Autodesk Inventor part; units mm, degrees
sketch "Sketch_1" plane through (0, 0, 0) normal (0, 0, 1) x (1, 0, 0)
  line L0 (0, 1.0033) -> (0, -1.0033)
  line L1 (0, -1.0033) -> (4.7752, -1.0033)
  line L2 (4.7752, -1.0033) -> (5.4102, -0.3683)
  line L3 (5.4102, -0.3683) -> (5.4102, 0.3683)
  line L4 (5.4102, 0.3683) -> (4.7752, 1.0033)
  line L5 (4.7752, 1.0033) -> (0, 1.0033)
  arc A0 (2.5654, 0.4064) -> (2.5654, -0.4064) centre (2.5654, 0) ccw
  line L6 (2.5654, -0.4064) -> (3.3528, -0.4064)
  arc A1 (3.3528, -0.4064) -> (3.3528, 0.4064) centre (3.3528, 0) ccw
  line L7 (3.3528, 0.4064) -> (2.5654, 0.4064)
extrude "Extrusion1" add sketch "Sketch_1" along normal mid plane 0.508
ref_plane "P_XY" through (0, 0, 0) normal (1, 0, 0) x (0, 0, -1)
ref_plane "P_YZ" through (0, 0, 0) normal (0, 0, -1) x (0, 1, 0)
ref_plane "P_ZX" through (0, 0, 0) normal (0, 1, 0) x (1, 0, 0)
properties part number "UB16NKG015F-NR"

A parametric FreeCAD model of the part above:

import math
import FreeCAD as App
import Part
import Sketcher

V = App.Vector
Q = App.Units.Quantity


def add_polygon(sketch, points):
    """Adds a closed chain of lines whose ends are joined by coincident constraints."""
    first, n = sketch.GeometryCount, len(points)
    for a, b in zip(points, points[1:] + points[:1]):
        sketch.addGeometry(Part.LineSegment(App.Vector(*a, 0), App.Vector(*b, 0)), False)
    for i in range(n):
        sketch.addConstraint(Sketcher.Constraint("Coincident", first + i, 2, first + (i + 1) % n, 1))

doc = App.newDocument("Part")
body = doc.addObject("PartDesign::Body", "Body")

# Sketch on XY plane
sketch1 = body.newObject("Sketcher::SketchObject", "Sketch")
sketch1.AttachmentSupport = (doc.getObject("XY_Plane"), [""])
sketch1.MapMode = "FlatFace"
add_polygon(sketch1, [(4.7752, 1.0033), (0, 1.0033), (0, -1.0033), (4.7752, -1.0033), (5.4102, -0.3683), (5.4102, 0.3683)])  # lines 0-5
sketch1.addGeometry(Part.ArcOfCircle(Part.Circle(V(2.5654, 0, 0), V(0, 0, 1), 0.4064), math.radians(90), math.radians(270)), False)  # 6
sketch1.addGeometry(Part.LineSegment(V(2.5654, 0.4064, 0), V(3.3528, 0.4064, 0)), False)  # 7
sketch1.addGeometry(Part.ArcOfCircle(Part.Circle(V(3.3528, 0, 0), V(0, 0, 1), 0.4064), math.radians(-90), math.radians(90)), False)  # 8
sketch1.addGeometry(Part.LineSegment(V(3.3528, -0.4064, 0), V(2.5654, -0.4064, 0)), False)  # 9
sketch1.addConstraint([
    Sketcher.Constraint("Tangent", 6, 1, 7, 1),
    Sketcher.Constraint("Tangent", 7, 2, 8, 2),
    Sketcher.Constraint("Tangent", 8, 1, 9, 1),
    Sketcher.Constraint("Tangent", 9, 2, 6, 2),
    Sketcher.Constraint("Horizontal", 0),
    Sketcher.Constraint("Vertical", 1),
    Sketcher.Constraint("Horizontal", 2),
    Sketcher.Constraint("Vertical", 4),
    Sketcher.Constraint("Horizontal", 7),
    Sketcher.Constraint("Horizontal", 9),
    Sketcher.Constraint("Symmetric", 0, 2, 1, 2, -1, 1),
    Sketcher.Constraint("PointOnObject", 6, 3, -1),
    Sketcher.Constraint("Perpendicular", 3, 5),
    Sketcher.Constraint("Vertical", 2, 2, 5, 2),
    Sketcher.Constraint("Equal", 3, 5),
    Sketcher.Constraint("Radius", 6, Q("0.016 in")),
    Sketcher.Constraint("DistanceX", 0, 2, 0, 1, Q("0.188 in")),
    Sketcher.Constraint("DistanceX", 7, 1, 7, 2, Q("0.031 in")),
    Sketcher.Constraint("DistanceY", 1, 2, 1, 1, Q("0.079 in")),
    Sketcher.Constraint("DistanceY", 4, 1, 4, 2, Q("0.029 in")),
    Sketcher.Constraint("DistanceX", -1, 1, 6, 3, Q("0.101 in")),
])
pad1 = body.newObject("PartDesign::Pad", "Pad")
pad1.Profile = sketch1
pad1.Length = Q("0.02 in")
pad1.Midplane = True

doc.recompute()
